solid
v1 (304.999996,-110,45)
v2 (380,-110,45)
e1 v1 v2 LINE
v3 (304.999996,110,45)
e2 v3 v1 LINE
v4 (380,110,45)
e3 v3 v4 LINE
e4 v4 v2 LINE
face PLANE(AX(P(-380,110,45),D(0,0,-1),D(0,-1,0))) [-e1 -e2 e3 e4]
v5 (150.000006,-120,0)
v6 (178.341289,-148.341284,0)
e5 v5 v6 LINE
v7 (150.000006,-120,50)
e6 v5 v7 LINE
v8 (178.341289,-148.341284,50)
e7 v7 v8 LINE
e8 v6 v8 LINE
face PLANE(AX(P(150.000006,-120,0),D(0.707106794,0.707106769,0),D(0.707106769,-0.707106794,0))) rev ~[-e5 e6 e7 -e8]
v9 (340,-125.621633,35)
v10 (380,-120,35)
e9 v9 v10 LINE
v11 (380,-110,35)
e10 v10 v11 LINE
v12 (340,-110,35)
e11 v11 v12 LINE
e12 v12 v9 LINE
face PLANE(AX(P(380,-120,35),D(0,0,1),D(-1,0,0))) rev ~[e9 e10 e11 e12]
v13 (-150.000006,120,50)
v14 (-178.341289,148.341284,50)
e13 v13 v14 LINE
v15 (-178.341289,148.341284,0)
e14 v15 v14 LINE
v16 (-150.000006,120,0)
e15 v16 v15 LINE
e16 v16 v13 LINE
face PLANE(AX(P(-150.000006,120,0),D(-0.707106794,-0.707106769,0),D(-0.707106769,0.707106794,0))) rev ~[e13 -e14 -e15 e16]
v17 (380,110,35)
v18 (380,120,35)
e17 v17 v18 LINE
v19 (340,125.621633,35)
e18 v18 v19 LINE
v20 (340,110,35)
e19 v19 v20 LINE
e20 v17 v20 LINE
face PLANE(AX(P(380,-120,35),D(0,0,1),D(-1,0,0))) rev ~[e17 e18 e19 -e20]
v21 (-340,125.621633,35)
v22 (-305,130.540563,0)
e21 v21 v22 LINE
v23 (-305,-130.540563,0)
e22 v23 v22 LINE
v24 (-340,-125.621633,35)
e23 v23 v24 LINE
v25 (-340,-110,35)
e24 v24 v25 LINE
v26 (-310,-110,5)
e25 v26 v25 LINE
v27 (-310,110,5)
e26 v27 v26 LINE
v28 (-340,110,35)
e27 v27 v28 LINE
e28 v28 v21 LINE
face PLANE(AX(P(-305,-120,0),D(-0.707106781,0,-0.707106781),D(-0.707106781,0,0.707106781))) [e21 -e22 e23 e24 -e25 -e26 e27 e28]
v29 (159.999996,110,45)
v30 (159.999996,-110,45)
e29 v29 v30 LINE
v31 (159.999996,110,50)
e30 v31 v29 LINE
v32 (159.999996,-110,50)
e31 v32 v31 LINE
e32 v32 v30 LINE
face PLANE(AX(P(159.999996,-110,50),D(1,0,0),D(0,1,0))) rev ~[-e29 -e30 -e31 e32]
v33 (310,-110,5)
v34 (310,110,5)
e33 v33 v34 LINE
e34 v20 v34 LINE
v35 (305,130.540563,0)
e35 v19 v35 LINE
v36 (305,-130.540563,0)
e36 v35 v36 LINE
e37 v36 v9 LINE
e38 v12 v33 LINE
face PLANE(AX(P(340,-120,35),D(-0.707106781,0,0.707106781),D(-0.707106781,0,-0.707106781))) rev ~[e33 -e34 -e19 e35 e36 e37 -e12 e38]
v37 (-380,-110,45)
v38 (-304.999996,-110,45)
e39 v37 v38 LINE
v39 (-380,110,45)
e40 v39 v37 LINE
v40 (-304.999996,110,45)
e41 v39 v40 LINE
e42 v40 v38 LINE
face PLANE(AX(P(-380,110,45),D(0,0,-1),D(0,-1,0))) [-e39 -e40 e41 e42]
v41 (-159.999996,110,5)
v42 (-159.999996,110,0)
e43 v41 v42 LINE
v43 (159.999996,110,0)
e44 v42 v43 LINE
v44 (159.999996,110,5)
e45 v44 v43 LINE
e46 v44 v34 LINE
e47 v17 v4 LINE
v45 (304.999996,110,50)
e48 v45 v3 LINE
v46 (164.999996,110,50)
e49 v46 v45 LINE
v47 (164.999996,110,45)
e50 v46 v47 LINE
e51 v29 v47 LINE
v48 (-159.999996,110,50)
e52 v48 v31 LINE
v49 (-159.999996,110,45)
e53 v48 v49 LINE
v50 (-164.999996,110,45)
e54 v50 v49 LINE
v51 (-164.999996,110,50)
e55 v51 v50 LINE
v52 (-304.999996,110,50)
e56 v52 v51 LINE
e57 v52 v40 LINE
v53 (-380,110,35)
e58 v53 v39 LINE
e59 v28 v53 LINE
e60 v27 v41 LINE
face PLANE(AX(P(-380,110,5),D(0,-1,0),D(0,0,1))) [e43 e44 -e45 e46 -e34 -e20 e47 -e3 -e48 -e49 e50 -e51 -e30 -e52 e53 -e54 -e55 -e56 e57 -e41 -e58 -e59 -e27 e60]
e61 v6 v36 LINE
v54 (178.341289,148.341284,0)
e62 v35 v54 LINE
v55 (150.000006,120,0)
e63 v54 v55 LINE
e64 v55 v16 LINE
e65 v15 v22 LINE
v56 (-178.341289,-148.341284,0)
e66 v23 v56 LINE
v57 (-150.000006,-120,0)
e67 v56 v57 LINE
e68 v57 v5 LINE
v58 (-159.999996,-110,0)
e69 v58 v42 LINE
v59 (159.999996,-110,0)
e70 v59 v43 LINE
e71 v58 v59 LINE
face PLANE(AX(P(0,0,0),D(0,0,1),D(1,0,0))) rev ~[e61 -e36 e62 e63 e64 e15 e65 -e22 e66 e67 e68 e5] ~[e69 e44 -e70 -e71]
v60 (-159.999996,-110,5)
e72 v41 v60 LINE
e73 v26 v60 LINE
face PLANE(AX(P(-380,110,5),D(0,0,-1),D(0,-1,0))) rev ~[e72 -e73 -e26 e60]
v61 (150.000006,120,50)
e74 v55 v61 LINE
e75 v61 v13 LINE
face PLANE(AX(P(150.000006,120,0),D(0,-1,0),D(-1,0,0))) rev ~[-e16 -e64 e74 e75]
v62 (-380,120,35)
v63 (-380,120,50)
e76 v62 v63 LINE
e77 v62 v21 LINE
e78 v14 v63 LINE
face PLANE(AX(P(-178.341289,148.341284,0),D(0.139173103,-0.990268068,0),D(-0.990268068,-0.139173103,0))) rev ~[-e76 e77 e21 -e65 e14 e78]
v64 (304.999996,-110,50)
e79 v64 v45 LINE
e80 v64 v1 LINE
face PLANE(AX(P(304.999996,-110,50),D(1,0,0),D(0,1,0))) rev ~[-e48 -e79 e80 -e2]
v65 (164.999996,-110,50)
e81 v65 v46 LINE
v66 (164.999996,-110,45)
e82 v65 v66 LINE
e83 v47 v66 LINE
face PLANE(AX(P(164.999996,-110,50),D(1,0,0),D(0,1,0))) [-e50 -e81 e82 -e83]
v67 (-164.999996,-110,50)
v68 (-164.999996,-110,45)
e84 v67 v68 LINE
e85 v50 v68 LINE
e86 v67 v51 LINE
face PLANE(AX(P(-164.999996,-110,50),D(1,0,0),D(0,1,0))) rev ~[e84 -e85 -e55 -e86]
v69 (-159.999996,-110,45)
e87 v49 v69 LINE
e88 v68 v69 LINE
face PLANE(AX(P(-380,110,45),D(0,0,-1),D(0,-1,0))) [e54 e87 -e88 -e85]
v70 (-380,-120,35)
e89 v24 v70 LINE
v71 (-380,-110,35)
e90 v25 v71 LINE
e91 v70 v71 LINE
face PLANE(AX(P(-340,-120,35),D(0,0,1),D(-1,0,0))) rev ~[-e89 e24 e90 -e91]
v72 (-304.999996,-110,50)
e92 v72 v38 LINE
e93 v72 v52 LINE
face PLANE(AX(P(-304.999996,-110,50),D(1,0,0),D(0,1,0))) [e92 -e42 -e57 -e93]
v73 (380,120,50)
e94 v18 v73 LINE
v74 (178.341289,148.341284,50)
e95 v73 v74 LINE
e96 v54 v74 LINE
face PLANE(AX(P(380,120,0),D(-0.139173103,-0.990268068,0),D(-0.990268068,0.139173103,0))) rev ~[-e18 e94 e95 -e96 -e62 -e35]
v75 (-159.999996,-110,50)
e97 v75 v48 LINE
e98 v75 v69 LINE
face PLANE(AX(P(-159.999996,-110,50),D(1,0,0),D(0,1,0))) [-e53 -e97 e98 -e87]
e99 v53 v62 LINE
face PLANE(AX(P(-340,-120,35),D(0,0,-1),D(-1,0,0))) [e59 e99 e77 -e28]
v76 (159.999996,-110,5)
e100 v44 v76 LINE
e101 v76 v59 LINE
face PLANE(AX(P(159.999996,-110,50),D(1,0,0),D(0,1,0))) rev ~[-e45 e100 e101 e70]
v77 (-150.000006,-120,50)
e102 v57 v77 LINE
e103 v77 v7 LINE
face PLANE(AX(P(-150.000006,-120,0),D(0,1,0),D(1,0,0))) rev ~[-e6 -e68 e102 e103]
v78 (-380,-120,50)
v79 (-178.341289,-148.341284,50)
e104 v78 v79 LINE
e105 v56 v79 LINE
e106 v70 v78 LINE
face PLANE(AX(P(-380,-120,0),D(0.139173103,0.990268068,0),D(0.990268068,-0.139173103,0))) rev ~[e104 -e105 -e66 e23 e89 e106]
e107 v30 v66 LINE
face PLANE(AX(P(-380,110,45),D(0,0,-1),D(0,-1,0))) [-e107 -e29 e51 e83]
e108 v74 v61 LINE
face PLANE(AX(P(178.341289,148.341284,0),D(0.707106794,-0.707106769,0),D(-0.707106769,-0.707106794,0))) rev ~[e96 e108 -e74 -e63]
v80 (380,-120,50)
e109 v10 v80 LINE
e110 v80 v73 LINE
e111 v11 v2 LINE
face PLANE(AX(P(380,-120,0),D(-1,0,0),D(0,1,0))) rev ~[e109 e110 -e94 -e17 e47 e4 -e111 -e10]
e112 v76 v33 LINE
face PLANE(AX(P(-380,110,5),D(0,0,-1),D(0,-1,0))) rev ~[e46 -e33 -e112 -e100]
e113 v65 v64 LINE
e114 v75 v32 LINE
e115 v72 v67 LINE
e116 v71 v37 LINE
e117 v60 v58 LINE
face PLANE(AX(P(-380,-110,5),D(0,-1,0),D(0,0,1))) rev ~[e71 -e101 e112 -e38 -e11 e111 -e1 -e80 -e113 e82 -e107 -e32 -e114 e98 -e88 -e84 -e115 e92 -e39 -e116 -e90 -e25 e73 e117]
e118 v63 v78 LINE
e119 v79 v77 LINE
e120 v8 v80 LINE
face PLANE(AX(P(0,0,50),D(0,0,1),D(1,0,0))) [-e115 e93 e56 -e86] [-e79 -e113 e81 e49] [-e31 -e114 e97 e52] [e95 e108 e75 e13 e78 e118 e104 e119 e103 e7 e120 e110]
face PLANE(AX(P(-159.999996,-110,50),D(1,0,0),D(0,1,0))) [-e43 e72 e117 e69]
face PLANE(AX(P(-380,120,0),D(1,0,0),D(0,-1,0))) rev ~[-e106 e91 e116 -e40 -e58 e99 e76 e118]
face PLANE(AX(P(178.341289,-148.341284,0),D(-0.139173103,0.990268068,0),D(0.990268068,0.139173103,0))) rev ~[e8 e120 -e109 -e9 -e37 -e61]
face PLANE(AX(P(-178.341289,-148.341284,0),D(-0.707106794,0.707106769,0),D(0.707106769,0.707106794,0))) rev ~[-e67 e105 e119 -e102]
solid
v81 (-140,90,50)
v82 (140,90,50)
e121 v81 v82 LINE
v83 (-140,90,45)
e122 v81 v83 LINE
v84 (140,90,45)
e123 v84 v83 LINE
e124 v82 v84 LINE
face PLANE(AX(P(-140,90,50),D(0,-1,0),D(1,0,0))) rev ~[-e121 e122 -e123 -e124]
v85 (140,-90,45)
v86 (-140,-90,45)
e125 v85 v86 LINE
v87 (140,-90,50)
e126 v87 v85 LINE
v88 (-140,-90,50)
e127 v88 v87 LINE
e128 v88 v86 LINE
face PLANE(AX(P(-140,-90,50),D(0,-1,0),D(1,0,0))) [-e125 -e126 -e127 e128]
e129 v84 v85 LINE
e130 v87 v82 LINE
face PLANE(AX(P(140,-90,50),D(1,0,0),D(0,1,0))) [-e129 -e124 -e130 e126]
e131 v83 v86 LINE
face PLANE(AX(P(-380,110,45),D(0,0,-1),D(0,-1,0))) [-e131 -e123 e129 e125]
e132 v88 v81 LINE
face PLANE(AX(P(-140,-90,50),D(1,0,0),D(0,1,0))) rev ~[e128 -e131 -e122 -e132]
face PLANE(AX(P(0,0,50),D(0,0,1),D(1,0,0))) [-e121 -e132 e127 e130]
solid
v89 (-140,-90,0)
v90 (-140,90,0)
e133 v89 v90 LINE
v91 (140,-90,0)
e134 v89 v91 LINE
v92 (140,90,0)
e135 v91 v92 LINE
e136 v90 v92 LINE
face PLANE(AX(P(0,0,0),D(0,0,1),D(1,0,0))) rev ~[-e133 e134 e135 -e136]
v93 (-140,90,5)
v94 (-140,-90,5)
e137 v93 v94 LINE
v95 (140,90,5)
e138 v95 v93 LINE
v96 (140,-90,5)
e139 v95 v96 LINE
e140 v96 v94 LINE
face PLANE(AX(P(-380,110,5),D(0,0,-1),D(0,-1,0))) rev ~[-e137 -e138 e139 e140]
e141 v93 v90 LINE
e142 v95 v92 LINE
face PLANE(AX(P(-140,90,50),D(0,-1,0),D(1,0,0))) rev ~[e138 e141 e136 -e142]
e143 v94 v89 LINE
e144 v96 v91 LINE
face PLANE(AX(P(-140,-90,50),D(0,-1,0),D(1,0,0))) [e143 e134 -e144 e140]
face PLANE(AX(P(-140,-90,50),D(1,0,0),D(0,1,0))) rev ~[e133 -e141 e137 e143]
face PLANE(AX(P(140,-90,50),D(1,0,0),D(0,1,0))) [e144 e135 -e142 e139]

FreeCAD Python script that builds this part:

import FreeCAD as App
import Part
import Sketcher
from FreeCAD import Vector
Q = App.Units.Quantity


def add_polygon(sketch, points):
    """Adds a closed chain of lines whose ends are joined by coincident constraints."""
    first, n = sketch.GeometryCount, len(points)
    for a, b in zip(points, points[1:] + points[:1]):
        sketch.addGeometry(Part.LineSegment(App.Vector(*a, 0), App.Vector(*b, 0)), False)
    for i in range(n):
        sketch.addConstraint(Sketcher.Constraint("Coincident", first + i, 2, first + (i + 1) % n, 1))

doc = App.newDocument("Part")
body = doc.addObject("PartDesign::Body", "Body")
body.AllowCompound = True

# Sketch on XY plane
sketch1 = doc.addObject("Sketcher::SketchObject", "Sketch")
body.addObject(sketch1)
sketch1.AttachmentSupport = (doc.XY_Plane, [""])
sketch1.MapMode = "FlatFace"
add_polygon(sketch1, [(-178.341289, 148.341284), (-380, 120), (-380, -120), (-178.341289, -148.341284), (-150.000006, -120), (150.000006, -120), (178.341289, -148.341284), (380, -120), (380, 120), (178.341289, 148.341284), (150.000006, 120), (-150.000006, 120)])  # lines 0-11
sketch1.addConstraint(Sketcher.Constraint("Vertical", 1))
sketch1.addConstraint(Sketcher.Constraint("Horizontal", 4))
sketch1.addConstraint(Sketcher.Constraint("Vertical", 7))
sketch1.addConstraint(Sketcher.Constraint("Horizontal", 10))
sketch1.addConstraint(Sketcher.Constraint("Symmetric", 0, 2, 6, 2, -1, 1))
sketch1.addConstraint(Sketcher.Constraint("Symmetric", 2, 2, 8, 2, -1, 1))
sketch1.addConstraint(Sketcher.Constraint("Symmetric", 3, 2, 9, 2, -1, 1))
sketch1.addConstraint(Sketcher.Constraint("Symmetric", 5, 2, 11, 2, -1, 1))
sketch1.addConstraint(Sketcher.Constraint("Symmetric", 2, 2, 5, 2, -2))
sketch1.addConstraint(Sketcher.Constraint("Perpendicular", 3, 5))
sketch1.addConstraint(Sketcher.Constraint("Parallel", 2, 8))
sketch1.addConstraint(Sketcher.Constraint("Perpendicular", 9, 11))
sketch1.addConstraint(Sketcher.Constraint("Horizontal", 1, 2, 3, 2))
sketch1.addConstraint(Sketcher.Constraint("Horizontal", 4, 2, 6, 2))
sketch1.addConstraint(Sketcher.Constraint("Vertical", 4, 2, 9, 2))
sketch1.addConstraint(Sketcher.Constraint("DistanceY", 1, 2, 1, 1, 240.0))
sketch1.addConstraint(Sketcher.Constraint("Angle", 0, Q("-172 deg")))
sketch1.addConstraint(Sketcher.Constraint("DistanceX", 0, 2, -1, 1, 380.0))
sketch1.addConstraint(Sketcher.Constraint("DistanceX", 4, 1, 4, 2, 300.000012))
pad1 = doc.addObject("PartDesign::Pad", "Pad")
body.addObject(pad1)
pad1.Profile = sketch1
pad1.Length = 50

# Sketch on YZ plane
sketch2 = doc.addObject("Sketcher::SketchObject", "Sketch001")
body.addObject(sketch2)
sketch2.AttachmentSupport = (doc.YZ_Plane, [""])
sketch2.MapMode = "FlatFace"
sketch2.AttachmentOffset = App.Placement(Vector(0, 0, -380), App.Rotation())
add_polygon(sketch2, [(110, 45), (110, 5), (-110, 5), (-110, 45)])  # lines 0-3
sketch2.addConstraint(Sketcher.Constraint("Vertical", 0))
sketch2.addConstraint(Sketcher.Constraint("Horizontal", 1))
sketch2.addConstraint(Sketcher.Constraint("Vertical", 2))
sketch2.addConstraint(Sketcher.Constraint("Horizontal", 3))
sketch2.addConstraint(Sketcher.Constraint("DistanceX", 1, 2, 1, 1, 220.0))
sketch2.addConstraint(Sketcher.Constraint("DistanceY", 0, 2, 0, 1, 40.0))
sketch2.addConstraint(Sketcher.Constraint("DistanceX", -1, 1, 0, 2, 110.0))
sketch2.addConstraint(Sketcher.Constraint("DistanceY", -1, 1, 0, 2, 5.0))
pocket1 = doc.addObject("PartDesign::Pocket", "Pocket")
body.addObject(pocket1)
pocket1.Profile = sketch2
pocket1.Length = 760
pocket1.Reversed = True

# Sketch on XZ plane
sketch3 = doc.addObject("Sketcher::SketchObject", "Sketch002")
body.addObject(sketch3)
sketch3.AttachmentSupport = (doc.XZ_Plane, [""])
sketch3.MapMode = "FlatFace"
sketch3.AttachmentOffset = App.Placement(Vector(0, 0, 120), App.Rotation())
add_polygon(sketch3, [(305, 0), (380, 0), (380, 35), (340, 35)])  # lines 0-3
add_polygon(sketch3, [(-340, 35), (-380, 35), (-380, 0), (-305, 0)])  # lines 4-7
sketch3.addConstraint(Sketcher.Constraint("Horizontal", 0))
sketch3.addConstraint(Sketcher.Constraint("Vertical", 1))
sketch3.addConstraint(Sketcher.Constraint("Horizontal", 2))
sketch3.addConstraint(Sketcher.Constraint("Horizontal", 4))
sketch3.addConstraint(Sketcher.Constraint("Vertical", 5))
sketch3.addConstraint(Sketcher.Constraint("Horizontal", 6))
sketch3.addConstraint(Sketcher.Constraint("Symmetric", 0, 2, 5, 2, -1, 1))
sketch3.addConstraint(Sketcher.Constraint("Symmetric", 3, 2, 6, 2, -2))
sketch3.addConstraint(Sketcher.Constraint("Symmetric", 2, 2, 7, 2, -2))
sketch3.addConstraint(Sketcher.Constraint("Perpendicular", 3, 7))
sketch3.addConstraint(Sketcher.Constraint("DistanceX", 0, 1, 0, 2, 75.0))
sketch3.addConstraint(Sketcher.Constraint("DistanceX", 2, 2, 2, 1, 40.0))
sketch3.addConstraint(Sketcher.Constraint("DistanceX", -1, 1, 0, 2, 380.0))
pocket2 = doc.addObject("PartDesign::Pocket", "Pocket001")
body.addObject(pocket2)
pocket2.Profile = sketch3
pocket2.Length = 240

# Sketch on XY plane
sketch4 = doc.addObject("Sketcher::SketchObject", "Sketch003")
body.addObject(sketch4)
sketch4.AttachmentSupport = (doc.XY_Plane, [""])
sketch4.MapMode = "FlatFace"
sketch4.AttachmentOffset = App.Placement(Vector(0, 0, 50), App.Rotation())
add_polygon(sketch4, [(-159.999996, 110), (-159.999996, -110), (159.999996, -110), (159.999996, 110)])  # lines 0-3
add_polygon(sketch4, [(140, -90), (-140, -90), (-140, 90), (140, 90)])  # lines 4-7
sketch4.addConstraint(Sketcher.Constraint("Vertical", 0))
sketch4.addConstraint(Sketcher.Constraint("Horizontal", 1))
sketch4.addConstraint(Sketcher.Constraint("Vertical", 2))
sketch4.addConstraint(Sketcher.Constraint("Horizontal", 3))
sketch4.addConstraint(Sketcher.Constraint("Horizontal", 4))
sketch4.addConstraint(Sketcher.Constraint("Vertical", 5))
sketch4.addConstraint(Sketcher.Constraint("Horizontal", 6))
sketch4.addConstraint(Sketcher.Constraint("Vertical", 7))
sketch4.addConstraint(Sketcher.Constraint("Symmetric", 0, 2, 2, 2, -1, 1))
sketch4.addConstraint(Sketcher.Constraint("Symmetric", 4, 2, 6, 2, -1, 1))
sketch4.addConstraint(Sketcher.Constraint("DistanceX", 4, 2, 4, 1, 280.0))
sketch4.addConstraint(Sketcher.Constraint("DistanceY", 0, 2, 0, 1, 220.0))
sketch4.addConstraint(Sketcher.Constraint("DistanceY", 5, 1, 5, 2, 180.0))
sketch4.addConstraint(Sketcher.Constraint("DistanceX", 1, 1, 1, 2, 319.999992))
pocket3 = doc.addObject("PartDesign::Pocket", "Pocket002")
body.addObject(pocket3)
pocket3.Profile = sketch4
pocket3.Length = 50

# Sketch on XZ plane
sketch5 = doc.addObject("Sketcher::SketchObject", "Sketch004")
body.addObject(sketch5)
sketch5.AttachmentSupport = (doc.XZ_Plane, [""])
sketch5.MapMode = "FlatFace"
sketch5.AttachmentOffset = App.Placement(Vector(0, 0, 120), App.Rotation())
add_polygon(sketch5, [(-340, 35), (-380, 35), (-380, 0), (-305, 0)])  # lines 0-3
add_polygon(sketch5, [(305, 0), (380, 0), (380, 35), (340, 35)])  # lines 4-7
sketch5.addConstraint(Sketcher.Constraint("Horizontal", 0))
sketch5.addConstraint(Sketcher.Constraint("Vertical", 1))
sketch5.addConstraint(Sketcher.Constraint("Horizontal", 2))
sketch5.addConstraint(Sketcher.Constraint("Horizontal", 4))
sketch5.addConstraint(Sketcher.Constraint("Vertical", 5))
sketch5.addConstraint(Sketcher.Constraint("Horizontal", 6))
sketch5.addConstraint(Sketcher.Constraint("Symmetric", 1, 2, 4, 2, -1, 1))
sketch5.addConstraint(Sketcher.Constraint("Symmetric", 3, 2, 6, 2, -2))
sketch5.addConstraint(Sketcher.Constraint("Symmetric", 2, 2, 7, 2, -2))
sketch5.addConstraint(Sketcher.Constraint("Perpendicular", 3, 7))
sketch5.addConstraint(Sketcher.Constraint("DistanceX", 0, 2, 0, 1, 40.0))
sketch5.addConstraint(Sketcher.Constraint("DistanceX", 2, 1, 2, 2, 75.0))
sketch5.addConstraint(Sketcher.Constraint("DistanceX", 0, 2, -1, 1, 380.0))
pocket4 = doc.addObject("PartDesign::Pocket", "Pocket003")
body.addObject(pocket4)
pocket4.Profile = sketch5
pocket4.Length = 871.858546
pocket4.Midplane = True

# Sketch on XY plane
sketch6 = doc.addObject("Sketcher::SketchObject", "Sketch005")
body.addObject(sketch6)
sketch6.AttachmentSupport = (doc.XY_Plane, [""])
sketch6.MapMode = "FlatFace"
sketch6.AttachmentOffset = App.Placement(Vector(0, 0, 50), App.Rotation())
add_polygon(sketch6, [(-304.999996, 110), (-304.999996, -110), (-164.999996, -110), (-164.999996, 110)])  # lines 0-3
add_polygon(sketch6, [(164.999996, 110), (164.999996, -110), (304.999996, -110), (304.999996, 110)])  # lines 4-7
sketch6.addConstraint(Sketcher.Constraint("Vertical", 0))
sketch6.addConstraint(Sketcher.Constraint("Horizontal", 1))
sketch6.addConstraint(Sketcher.Constraint("Vertical", 2))
sketch6.addConstraint(Sketcher.Constraint("Horizontal", 3))
sketch6.addConstraint(Sketcher.Constraint("Vertical", 4))
sketch6.addConstraint(Sketcher.Constraint("Horizontal", 5))
sketch6.addConstraint(Sketcher.Constraint("Vertical", 6))
sketch6.addConstraint(Sketcher.Constraint("Horizontal", 7))
sketch6.addConstraint(Sketcher.Constraint("Symmetric", 2, 2, 4, 2, -1, 1))
sketch6.addConstraint(Sketcher.Constraint("Symmetric", 0, 2, 6, 2, -1, 1))
sketch6.addConstraint(Sketcher.Constraint("Horizontal", 1, 2, 4, 2))
sketch6.addConstraint(Sketcher.Constraint("DistanceX", 1, 1, 1, 2, 140.0))
sketch6.addConstraint(Sketcher.Constraint("DistanceY", 0, 2, 0, 1, 220.0))
sketch6.addConstraint(Sketcher.Constraint("DistanceX", 1, 2, 4, 2, 329.999992))
pocket5 = doc.addObject("PartDesign::Pocket", "Pocket004")
body.addObject(pocket5)
pocket5.Profile = sketch6
pocket5.Length = 10

doc.recompute()
